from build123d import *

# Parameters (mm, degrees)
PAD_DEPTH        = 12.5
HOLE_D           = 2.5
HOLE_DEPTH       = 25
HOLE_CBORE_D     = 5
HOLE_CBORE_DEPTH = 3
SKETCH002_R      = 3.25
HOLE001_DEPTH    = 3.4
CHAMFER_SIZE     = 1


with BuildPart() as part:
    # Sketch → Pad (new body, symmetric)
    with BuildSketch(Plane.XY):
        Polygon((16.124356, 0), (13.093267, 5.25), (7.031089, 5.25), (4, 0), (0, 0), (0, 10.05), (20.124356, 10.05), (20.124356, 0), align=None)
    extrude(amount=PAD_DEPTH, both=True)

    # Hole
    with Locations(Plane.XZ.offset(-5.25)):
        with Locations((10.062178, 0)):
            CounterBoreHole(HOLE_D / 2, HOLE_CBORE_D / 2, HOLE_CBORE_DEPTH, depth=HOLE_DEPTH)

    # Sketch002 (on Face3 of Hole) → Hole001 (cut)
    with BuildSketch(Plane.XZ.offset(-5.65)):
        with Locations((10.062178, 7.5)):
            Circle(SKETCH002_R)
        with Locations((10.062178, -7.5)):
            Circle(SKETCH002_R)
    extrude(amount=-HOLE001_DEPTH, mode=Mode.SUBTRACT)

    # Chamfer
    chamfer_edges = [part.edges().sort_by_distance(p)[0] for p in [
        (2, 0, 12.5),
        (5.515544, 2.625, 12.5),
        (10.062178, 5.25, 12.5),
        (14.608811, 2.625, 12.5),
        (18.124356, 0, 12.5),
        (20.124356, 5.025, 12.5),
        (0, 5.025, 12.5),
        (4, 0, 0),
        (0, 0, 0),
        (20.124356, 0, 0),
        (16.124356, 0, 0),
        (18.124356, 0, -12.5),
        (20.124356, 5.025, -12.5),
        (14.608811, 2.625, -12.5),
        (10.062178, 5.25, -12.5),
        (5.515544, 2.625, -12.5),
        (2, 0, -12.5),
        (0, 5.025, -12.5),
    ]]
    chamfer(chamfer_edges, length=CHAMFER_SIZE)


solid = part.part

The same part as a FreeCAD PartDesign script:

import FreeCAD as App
import Part
import Sketcher

V = App.Vector
Q = App.Units.Quantity


def edges_at(feature, points):
    """Names of the edges that pass closest to the given points."""
    edges = feature.Shape.Edges
    near = lambda p: min(range(len(edges)), key=lambda i: edges[i].distToShape(Part.Vertex(*p))[0])
    return sorted({f"Edge{near(p) + 1}" for p in points})

doc = App.newDocument("Part")
body = doc.addObject("PartDesign::Body", "Body")

sketch1 = doc.addObject("Sketcher::SketchObject", "Sketch")
body.addObject(sketch1)
sketch1.AttachmentSupport = (doc.XY_Plane, [""])
sketch1.MapMode = "FlatFace"
sketch1.addGeometry(Part.LineSegment(V(13.1, 5.2, 0), V(16.1, 0, 0)), False)
sketch1.addGeometry(Part.LineSegment(V(16.1, 0, 0), V(20.1, 0, 0)), False)
sketch1.addGeometry(Part.LineSegment(V(20.1, 0, 0), V(20.1, 10.1, 0)), False)
sketch1.addGeometry(Part.LineSegment(V(20.1, 10.1, 0), V(0, 10.1, 0)), False)
sketch1.addGeometry(Part.LineSegment(V(0, 10.1, 0), V(0, 0, 0)), False)
sketch1.addGeometry(Part.LineSegment(V(0, 0, 0), V(4, 0, 0)), False)
sketch1.addGeometry(Part.LineSegment(V(4, 0, 0), V(7, 5.2, 0)), False)
sketch1.addGeometry(Part.LineSegment(V(7, 5.2, 0), V(13.1, 5.2, 0)), False)
sketch1.addConstraint(Sketcher.Constraint("Coincident", 0, 2, 1, 1))
sketch1.addConstraint(Sketcher.Constraint("Coincident", 1, 2, 2, 1))
sketch1.addConstraint(Sketcher.Constraint("Coincident", 2, 2, 3, 1))
sketch1.addConstraint(Sketcher.Constraint("Coincident", 3, 2, 4, 1))
sketch1.addConstraint(Sketcher.Constraint("Coincident", 4, 2, 5, 1))
sketch1.addConstraint(Sketcher.Constraint("Coincident", 5, 2, 6, 1))
sketch1.addConstraint(Sketcher.Constraint("Coincident", 6, 2, 7, 1))
sketch1.addConstraint(Sketcher.Constraint("Coincident", 7, 2, 0, 1))
sketch1.addConstraint(Sketcher.Constraint("Horizontal", 1))
sketch1.addConstraint(Sketcher.Constraint("Vertical", 2))
sketch1.addConstraint(Sketcher.Constraint("Horizontal", 3))
sketch1.addConstraint(Sketcher.Constraint("Vertical", 4))
sketch1.addConstraint(Sketcher.Constraint("Horizontal", 5))
sketch1.addConstraint(Sketcher.Constraint("Horizontal", 7))
sketch1.addConstraint(Sketcher.Constraint("Coincident", 4, 2, -1, 1))
sketch1.addConstraint(Sketcher.Constraint("PointOnObject", 0, 2, -1))
sketch1.addConstraint(Sketcher.Constraint("Equal", 1, 5))
sketch1.addConstraint(Sketcher.Constraint("Equal", 0, 6))
sketch1.addConstraint(Sketcher.Constraint("DistanceX", 1, 1, 1, 2, 4.0))
sketch1.addConstraint(Sketcher.Constraint("Angle", 0, Q("-59.999999 deg")))
sketch1.addConstraint(Sketcher.Constraint("DistanceY", 2, 1, 2, 2, 10.05))
sketch1.addConstraint(Sketcher.Constraint("DistanceY", 6, 2, 3, 2, 4.8))
sketch1.addConstraint(Sketcher.Constraint("DistanceX", 7, 1, 7, 2, 6.062178))
pad1 = doc.addObject("PartDesign::Pad", "Pad")
body.addObject(pad1)
pad1.Profile = sketch1
pad1.Length = 25
pad1.Midplane = True

sketch2 = doc.addObject("Sketcher::SketchObject", "Sketch001")
body.addObject(sketch2)
sketch2.AttachmentSupport = (doc.XZ_Plane, [""])
sketch2.MapMode = "FlatFace"
sketch2.AttachmentOffset = App.Placement(V(0, 0, -5.25), App.Rotation())
sketch2.addGeometry(Part.Circle(V(10.1, 0, 0), V(0, 0, 1), 1.2), False)
sketch2.addConstraint(Sketcher.Constraint("PointOnObject", 0, 3, -1))
sketch2.addConstraint(Sketcher.Constraint("Diameter", 0, 2.5))
sketch2.addConstraint(Sketcher.Constraint("DistanceX", -1, 1, 0, 3, 10.062178))
doc.recompute()
hole = doc.addObject("PartDesign::Hole", "Hole")
body.addObject(hole)
hole.Profile = sketch2
hole.ThreadType = "None"
hole.Diameter = 2.5
hole.DepthType = "Dimension"
hole.Depth = 25
hole.DrillPoint = "Flat"
hole.HoleCutType = "Counterbore"
hole.HoleCutDiameter = 5
hole.HoleCutDepth = 3

sketch3 = doc.addObject("Sketcher::SketchObject", "Sketch002")
body.addObject(sketch3)
sketch3.AttachmentSupport = (doc.XZ_Plane, [""])
sketch3.MapMode = "FlatFace"
sketch3.AttachmentOffset = App.Placement(V(0, 0, -5.65), App.Rotation())
sketch3.addGeometry(Part.Circle(V(10.1, 7.5, 0), V(0, 0, 1), 3.2), False)
sketch3.addGeometry(Part.Circle(V(10.1, -7.5, 0), V(0, 0, 1), 3.2), False)
sketch3.addConstraint(Sketcher.Constraint("Equal", 0, 1))
sketch3.addConstraint(Sketcher.Constraint("Symmetric", 0, 3, 1, 3, -1))
sketch3.addConstraint(Sketcher.Constraint("Diameter", 0, 6.5))
sketch3.addConstraint(Sketcher.Constraint("DistanceY", 1, 3, 0, 3, 15.0))
sketch3.addConstraint(Sketcher.Constraint("DistanceX", -1, 1, 0, 3, 10.062178))
pocket1 = doc.addObject("PartDesign::Pocket", "Pocket")
body.addObject(pocket1)
pocket1.Profile = sketch3
pocket1.Length = 3.4
doc.recompute()

chamfer = doc.addObject("PartDesign::Chamfer", "Chamfer")
body.addObject(chamfer)
chamfer.Base = (pocket1, edges_at(pocket1, [
    (2, 0, 12.5),
    (5.516, 2.625, 12.5),
    (10.062, 5.25, 12.5),
    (14.609, 2.625, 12.5),
    (18.124, 0, 12.5),
    (20.124, 5.025, 12.5),
    (0, 5.025, 12.5),
    (4, 0, 0),
    (0, 0, 0),
    (20.124, 0, 0),
    (16.124, 0, 0),
    (18.124, 0, -12.5),
    (20.124, 5.025, -12.5),
    (14.609, 2.625, -12.5),
    (10.062, 5.25, -12.5),
    (5.516, 2.625, -12.5),
    (2, 0, -12.5),
    (0, 5.025, -12.5),
]))
chamfer.Size = 1

doc.recompute()
